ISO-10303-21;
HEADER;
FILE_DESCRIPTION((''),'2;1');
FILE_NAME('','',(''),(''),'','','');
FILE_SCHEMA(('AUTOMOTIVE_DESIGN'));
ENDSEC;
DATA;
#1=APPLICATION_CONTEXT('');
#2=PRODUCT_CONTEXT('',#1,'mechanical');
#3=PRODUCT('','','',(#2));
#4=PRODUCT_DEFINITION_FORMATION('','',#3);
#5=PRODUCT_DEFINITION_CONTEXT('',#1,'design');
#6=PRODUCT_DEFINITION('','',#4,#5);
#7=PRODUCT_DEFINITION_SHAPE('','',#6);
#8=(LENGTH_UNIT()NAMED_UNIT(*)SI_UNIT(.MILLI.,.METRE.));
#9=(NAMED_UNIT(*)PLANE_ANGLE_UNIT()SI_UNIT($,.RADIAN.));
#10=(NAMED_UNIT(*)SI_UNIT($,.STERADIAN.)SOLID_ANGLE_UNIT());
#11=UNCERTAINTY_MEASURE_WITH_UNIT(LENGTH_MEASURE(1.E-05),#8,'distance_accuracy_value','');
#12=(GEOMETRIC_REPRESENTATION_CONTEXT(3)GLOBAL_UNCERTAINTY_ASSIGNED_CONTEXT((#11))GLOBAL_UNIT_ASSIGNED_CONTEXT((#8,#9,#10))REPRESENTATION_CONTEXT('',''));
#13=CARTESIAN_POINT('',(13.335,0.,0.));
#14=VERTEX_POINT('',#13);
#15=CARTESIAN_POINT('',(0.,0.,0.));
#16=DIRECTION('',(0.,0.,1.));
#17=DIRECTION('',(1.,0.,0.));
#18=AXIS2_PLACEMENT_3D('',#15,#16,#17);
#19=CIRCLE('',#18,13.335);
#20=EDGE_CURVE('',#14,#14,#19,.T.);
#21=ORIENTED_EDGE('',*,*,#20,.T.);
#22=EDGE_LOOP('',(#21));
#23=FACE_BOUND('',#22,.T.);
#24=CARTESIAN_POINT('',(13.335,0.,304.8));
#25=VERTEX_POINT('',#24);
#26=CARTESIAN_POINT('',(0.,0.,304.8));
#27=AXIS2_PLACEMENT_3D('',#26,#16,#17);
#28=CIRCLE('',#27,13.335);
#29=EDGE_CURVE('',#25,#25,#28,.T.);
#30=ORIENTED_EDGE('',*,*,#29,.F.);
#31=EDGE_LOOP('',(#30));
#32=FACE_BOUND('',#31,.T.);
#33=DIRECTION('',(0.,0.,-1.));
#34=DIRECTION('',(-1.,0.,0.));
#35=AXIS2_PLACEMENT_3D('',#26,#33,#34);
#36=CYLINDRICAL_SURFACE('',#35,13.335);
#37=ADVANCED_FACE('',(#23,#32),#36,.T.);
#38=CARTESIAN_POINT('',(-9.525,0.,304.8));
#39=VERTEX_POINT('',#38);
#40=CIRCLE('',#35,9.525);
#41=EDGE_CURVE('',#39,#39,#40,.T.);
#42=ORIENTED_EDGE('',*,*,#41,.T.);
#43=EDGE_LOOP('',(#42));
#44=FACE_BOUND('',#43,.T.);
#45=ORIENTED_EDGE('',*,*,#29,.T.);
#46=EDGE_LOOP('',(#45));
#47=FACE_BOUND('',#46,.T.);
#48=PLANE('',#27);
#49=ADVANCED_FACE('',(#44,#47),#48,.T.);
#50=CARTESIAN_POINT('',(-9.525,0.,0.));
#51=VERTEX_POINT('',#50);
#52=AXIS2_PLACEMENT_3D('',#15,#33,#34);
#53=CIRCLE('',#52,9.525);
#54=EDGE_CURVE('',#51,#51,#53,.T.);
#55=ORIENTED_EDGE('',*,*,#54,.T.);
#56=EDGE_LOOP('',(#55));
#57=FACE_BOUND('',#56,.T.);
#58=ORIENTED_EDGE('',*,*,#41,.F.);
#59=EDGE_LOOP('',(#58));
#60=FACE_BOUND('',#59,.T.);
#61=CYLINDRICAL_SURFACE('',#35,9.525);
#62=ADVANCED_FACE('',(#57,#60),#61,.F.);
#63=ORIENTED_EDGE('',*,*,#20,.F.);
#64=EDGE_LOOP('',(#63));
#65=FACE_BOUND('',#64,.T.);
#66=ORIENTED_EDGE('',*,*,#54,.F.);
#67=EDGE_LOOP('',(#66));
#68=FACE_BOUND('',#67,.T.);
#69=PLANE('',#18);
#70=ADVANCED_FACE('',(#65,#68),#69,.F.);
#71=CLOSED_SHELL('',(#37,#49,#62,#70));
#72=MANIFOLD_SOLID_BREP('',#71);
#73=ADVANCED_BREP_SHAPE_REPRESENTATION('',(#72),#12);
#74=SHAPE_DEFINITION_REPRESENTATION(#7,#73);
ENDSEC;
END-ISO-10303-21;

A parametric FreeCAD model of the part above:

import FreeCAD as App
import Part
import Sketcher
Q = App.Units.Quantity

doc = App.newDocument("Part")
body = doc.addObject("PartDesign::Body", "Body")

# Sketch on XY plane
sketch1 = doc.addObject("Sketcher::SketchObject", "Sketch")
body.addObject(sketch1)
sketch1.AttachmentSupport = (doc.XY_Plane, [""])
sketch1.MapMode = "FlatFace"
sketch1.addGeometry(Part.Circle(App.Vector(0, 0, 0), App.Vector(0, 0, 1), 13), False)
sketch1.addConstraint([
    Sketcher.Constraint("Coincident", 0, 3, -1, 1),
    Sketcher.Constraint("Diameter", 0, Q("1.05 in")),
])
pad1 = doc.addObject("PartDesign::Pad", "Pad")
body.addObject(pad1)
pad1.Profile = sketch1
pad1.Length = Q("12 in")

# Sketch on XY plane
sketch2 = doc.addObject("Sketcher::SketchObject", "Sketch001")
body.addObject(sketch2)
sketch2.AttachmentSupport = (doc.XY_Plane, [""])
sketch2.MapMode = "FlatFace"
sketch2.addGeometry(Part.Circle(App.Vector(0, 0, 0), App.Vector(0, 0, 1), 10), False)
sketch2.addConstraint([
    Sketcher.Constraint("Coincident", 0, 3, -1, 1),
    Sketcher.Constraint("Diameter", 0, Q("0.75 in")),
])
pocket1 = doc.addObject("PartDesign::Pocket", "Pocket")
body.addObject(pocket1)
pocket1.Profile = sketch2
pocket1.Type = "ThroughAll"
pocket1.Reversed = True

doc.recompute()
